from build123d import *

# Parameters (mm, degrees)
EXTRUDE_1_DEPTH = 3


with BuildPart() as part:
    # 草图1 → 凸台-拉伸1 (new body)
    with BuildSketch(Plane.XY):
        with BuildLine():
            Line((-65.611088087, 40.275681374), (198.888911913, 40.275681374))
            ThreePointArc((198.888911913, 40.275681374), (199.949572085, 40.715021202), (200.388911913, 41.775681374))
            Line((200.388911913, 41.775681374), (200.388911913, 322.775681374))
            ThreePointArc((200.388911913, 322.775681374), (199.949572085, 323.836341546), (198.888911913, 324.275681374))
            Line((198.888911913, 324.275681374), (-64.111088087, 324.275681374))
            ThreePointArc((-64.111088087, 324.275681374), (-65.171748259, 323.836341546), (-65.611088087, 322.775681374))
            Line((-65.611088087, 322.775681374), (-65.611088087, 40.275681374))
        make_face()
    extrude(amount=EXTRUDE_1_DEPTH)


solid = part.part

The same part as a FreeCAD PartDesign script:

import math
import FreeCAD as App
import Part
import Sketcher
Q = App.Units.Quantity

doc = App.newDocument("Part")
body = doc.addObject("PartDesign::Body", "Body")

# Sketch on XY plane
sketch1 = body.newObject("Sketcher::SketchObject", "Sketch")
sketch1.AttachmentSupport = (doc.getObject("XY_Plane"), [""])
sketch1.MapMode = "FlatFace"
sketch1.addGeometry([
    Part.LineSegment(App.Vector(-65.611088, 40.275681, 0), App.Vector(198.888912, 40.275681, 0)),  # 0
    Part.ArcOfCircle(Part.Circle(App.Vector(198.888912, 41.775681, 0), App.Vector(0, 0, 1), 1.5), math.radians(-90), math.radians(0)),  # 1
    Part.LineSegment(App.Vector(200.388912, 41.775681, 0), App.Vector(200.388912, 322.775681, 0)),  # 2
    Part.ArcOfCircle(Part.Circle(App.Vector(198.888912, 322.775681, 0), App.Vector(0, 0, 1), 1.5), math.radians(0), math.radians(90)),  # 3
    Part.LineSegment(App.Vector(198.888912, 324.275681, 0), App.Vector(-64.111088, 324.275681, 0)),  # 4
    Part.ArcOfCircle(Part.Circle(App.Vector(-64.111088, 322.775681, 0), App.Vector(0, 0, 1), 1.5), math.radians(90), math.radians(180)),  # 5
    Part.LineSegment(App.Vector(-65.611088, 322.775681, 0), App.Vector(-65.611088, 40.275681, 0)),  # 6
], False)
sketch1.addConstraint([
    Sketcher.Constraint("Tangent", 0, 2, 1, 1),
    Sketcher.Constraint("Tangent", 1, 2, 2, 1),
    Sketcher.Constraint("Tangent", 2, 2, 3, 1),
    Sketcher.Constraint("Tangent", 3, 2, 4, 1),
    Sketcher.Constraint("Tangent", 4, 2, 5, 1),
    Sketcher.Constraint("Tangent", 5, 2, 6, 1),
    Sketcher.Constraint("Coincident", 6, 2, 0, 1),
    Sketcher.Constraint("Horizontal", 0),
    Sketcher.Constraint("Vertical", 2),
    Sketcher.Constraint("Horizontal", 4),
    Sketcher.Constraint("Vertical", 6),
    Sketcher.Constraint("Equal", 1, 3),
    Sketcher.Constraint("Equal", 3, 5),
    Sketcher.Constraint("Radius", 1, Q("1.5 mm")),
    Sketcher.Constraint("DistanceX", 4, 2, 4, 1, Q("263 mm")),
    Sketcher.Constraint("DistanceY", 2, 1, 2, 2, Q("281 mm")),
    Sketcher.Constraint("DistanceX", -1, 1, 1, 3, Q("198.888912 mm")),
    Sketcher.Constraint("DistanceY", -1, 1, 1, 3, Q("41.775681 mm")),
])
pad1 = body.newObject("PartDesign::Pad", "Pad")
pad1.Profile = sketch1
pad1.Length = 3

doc.recompute()
